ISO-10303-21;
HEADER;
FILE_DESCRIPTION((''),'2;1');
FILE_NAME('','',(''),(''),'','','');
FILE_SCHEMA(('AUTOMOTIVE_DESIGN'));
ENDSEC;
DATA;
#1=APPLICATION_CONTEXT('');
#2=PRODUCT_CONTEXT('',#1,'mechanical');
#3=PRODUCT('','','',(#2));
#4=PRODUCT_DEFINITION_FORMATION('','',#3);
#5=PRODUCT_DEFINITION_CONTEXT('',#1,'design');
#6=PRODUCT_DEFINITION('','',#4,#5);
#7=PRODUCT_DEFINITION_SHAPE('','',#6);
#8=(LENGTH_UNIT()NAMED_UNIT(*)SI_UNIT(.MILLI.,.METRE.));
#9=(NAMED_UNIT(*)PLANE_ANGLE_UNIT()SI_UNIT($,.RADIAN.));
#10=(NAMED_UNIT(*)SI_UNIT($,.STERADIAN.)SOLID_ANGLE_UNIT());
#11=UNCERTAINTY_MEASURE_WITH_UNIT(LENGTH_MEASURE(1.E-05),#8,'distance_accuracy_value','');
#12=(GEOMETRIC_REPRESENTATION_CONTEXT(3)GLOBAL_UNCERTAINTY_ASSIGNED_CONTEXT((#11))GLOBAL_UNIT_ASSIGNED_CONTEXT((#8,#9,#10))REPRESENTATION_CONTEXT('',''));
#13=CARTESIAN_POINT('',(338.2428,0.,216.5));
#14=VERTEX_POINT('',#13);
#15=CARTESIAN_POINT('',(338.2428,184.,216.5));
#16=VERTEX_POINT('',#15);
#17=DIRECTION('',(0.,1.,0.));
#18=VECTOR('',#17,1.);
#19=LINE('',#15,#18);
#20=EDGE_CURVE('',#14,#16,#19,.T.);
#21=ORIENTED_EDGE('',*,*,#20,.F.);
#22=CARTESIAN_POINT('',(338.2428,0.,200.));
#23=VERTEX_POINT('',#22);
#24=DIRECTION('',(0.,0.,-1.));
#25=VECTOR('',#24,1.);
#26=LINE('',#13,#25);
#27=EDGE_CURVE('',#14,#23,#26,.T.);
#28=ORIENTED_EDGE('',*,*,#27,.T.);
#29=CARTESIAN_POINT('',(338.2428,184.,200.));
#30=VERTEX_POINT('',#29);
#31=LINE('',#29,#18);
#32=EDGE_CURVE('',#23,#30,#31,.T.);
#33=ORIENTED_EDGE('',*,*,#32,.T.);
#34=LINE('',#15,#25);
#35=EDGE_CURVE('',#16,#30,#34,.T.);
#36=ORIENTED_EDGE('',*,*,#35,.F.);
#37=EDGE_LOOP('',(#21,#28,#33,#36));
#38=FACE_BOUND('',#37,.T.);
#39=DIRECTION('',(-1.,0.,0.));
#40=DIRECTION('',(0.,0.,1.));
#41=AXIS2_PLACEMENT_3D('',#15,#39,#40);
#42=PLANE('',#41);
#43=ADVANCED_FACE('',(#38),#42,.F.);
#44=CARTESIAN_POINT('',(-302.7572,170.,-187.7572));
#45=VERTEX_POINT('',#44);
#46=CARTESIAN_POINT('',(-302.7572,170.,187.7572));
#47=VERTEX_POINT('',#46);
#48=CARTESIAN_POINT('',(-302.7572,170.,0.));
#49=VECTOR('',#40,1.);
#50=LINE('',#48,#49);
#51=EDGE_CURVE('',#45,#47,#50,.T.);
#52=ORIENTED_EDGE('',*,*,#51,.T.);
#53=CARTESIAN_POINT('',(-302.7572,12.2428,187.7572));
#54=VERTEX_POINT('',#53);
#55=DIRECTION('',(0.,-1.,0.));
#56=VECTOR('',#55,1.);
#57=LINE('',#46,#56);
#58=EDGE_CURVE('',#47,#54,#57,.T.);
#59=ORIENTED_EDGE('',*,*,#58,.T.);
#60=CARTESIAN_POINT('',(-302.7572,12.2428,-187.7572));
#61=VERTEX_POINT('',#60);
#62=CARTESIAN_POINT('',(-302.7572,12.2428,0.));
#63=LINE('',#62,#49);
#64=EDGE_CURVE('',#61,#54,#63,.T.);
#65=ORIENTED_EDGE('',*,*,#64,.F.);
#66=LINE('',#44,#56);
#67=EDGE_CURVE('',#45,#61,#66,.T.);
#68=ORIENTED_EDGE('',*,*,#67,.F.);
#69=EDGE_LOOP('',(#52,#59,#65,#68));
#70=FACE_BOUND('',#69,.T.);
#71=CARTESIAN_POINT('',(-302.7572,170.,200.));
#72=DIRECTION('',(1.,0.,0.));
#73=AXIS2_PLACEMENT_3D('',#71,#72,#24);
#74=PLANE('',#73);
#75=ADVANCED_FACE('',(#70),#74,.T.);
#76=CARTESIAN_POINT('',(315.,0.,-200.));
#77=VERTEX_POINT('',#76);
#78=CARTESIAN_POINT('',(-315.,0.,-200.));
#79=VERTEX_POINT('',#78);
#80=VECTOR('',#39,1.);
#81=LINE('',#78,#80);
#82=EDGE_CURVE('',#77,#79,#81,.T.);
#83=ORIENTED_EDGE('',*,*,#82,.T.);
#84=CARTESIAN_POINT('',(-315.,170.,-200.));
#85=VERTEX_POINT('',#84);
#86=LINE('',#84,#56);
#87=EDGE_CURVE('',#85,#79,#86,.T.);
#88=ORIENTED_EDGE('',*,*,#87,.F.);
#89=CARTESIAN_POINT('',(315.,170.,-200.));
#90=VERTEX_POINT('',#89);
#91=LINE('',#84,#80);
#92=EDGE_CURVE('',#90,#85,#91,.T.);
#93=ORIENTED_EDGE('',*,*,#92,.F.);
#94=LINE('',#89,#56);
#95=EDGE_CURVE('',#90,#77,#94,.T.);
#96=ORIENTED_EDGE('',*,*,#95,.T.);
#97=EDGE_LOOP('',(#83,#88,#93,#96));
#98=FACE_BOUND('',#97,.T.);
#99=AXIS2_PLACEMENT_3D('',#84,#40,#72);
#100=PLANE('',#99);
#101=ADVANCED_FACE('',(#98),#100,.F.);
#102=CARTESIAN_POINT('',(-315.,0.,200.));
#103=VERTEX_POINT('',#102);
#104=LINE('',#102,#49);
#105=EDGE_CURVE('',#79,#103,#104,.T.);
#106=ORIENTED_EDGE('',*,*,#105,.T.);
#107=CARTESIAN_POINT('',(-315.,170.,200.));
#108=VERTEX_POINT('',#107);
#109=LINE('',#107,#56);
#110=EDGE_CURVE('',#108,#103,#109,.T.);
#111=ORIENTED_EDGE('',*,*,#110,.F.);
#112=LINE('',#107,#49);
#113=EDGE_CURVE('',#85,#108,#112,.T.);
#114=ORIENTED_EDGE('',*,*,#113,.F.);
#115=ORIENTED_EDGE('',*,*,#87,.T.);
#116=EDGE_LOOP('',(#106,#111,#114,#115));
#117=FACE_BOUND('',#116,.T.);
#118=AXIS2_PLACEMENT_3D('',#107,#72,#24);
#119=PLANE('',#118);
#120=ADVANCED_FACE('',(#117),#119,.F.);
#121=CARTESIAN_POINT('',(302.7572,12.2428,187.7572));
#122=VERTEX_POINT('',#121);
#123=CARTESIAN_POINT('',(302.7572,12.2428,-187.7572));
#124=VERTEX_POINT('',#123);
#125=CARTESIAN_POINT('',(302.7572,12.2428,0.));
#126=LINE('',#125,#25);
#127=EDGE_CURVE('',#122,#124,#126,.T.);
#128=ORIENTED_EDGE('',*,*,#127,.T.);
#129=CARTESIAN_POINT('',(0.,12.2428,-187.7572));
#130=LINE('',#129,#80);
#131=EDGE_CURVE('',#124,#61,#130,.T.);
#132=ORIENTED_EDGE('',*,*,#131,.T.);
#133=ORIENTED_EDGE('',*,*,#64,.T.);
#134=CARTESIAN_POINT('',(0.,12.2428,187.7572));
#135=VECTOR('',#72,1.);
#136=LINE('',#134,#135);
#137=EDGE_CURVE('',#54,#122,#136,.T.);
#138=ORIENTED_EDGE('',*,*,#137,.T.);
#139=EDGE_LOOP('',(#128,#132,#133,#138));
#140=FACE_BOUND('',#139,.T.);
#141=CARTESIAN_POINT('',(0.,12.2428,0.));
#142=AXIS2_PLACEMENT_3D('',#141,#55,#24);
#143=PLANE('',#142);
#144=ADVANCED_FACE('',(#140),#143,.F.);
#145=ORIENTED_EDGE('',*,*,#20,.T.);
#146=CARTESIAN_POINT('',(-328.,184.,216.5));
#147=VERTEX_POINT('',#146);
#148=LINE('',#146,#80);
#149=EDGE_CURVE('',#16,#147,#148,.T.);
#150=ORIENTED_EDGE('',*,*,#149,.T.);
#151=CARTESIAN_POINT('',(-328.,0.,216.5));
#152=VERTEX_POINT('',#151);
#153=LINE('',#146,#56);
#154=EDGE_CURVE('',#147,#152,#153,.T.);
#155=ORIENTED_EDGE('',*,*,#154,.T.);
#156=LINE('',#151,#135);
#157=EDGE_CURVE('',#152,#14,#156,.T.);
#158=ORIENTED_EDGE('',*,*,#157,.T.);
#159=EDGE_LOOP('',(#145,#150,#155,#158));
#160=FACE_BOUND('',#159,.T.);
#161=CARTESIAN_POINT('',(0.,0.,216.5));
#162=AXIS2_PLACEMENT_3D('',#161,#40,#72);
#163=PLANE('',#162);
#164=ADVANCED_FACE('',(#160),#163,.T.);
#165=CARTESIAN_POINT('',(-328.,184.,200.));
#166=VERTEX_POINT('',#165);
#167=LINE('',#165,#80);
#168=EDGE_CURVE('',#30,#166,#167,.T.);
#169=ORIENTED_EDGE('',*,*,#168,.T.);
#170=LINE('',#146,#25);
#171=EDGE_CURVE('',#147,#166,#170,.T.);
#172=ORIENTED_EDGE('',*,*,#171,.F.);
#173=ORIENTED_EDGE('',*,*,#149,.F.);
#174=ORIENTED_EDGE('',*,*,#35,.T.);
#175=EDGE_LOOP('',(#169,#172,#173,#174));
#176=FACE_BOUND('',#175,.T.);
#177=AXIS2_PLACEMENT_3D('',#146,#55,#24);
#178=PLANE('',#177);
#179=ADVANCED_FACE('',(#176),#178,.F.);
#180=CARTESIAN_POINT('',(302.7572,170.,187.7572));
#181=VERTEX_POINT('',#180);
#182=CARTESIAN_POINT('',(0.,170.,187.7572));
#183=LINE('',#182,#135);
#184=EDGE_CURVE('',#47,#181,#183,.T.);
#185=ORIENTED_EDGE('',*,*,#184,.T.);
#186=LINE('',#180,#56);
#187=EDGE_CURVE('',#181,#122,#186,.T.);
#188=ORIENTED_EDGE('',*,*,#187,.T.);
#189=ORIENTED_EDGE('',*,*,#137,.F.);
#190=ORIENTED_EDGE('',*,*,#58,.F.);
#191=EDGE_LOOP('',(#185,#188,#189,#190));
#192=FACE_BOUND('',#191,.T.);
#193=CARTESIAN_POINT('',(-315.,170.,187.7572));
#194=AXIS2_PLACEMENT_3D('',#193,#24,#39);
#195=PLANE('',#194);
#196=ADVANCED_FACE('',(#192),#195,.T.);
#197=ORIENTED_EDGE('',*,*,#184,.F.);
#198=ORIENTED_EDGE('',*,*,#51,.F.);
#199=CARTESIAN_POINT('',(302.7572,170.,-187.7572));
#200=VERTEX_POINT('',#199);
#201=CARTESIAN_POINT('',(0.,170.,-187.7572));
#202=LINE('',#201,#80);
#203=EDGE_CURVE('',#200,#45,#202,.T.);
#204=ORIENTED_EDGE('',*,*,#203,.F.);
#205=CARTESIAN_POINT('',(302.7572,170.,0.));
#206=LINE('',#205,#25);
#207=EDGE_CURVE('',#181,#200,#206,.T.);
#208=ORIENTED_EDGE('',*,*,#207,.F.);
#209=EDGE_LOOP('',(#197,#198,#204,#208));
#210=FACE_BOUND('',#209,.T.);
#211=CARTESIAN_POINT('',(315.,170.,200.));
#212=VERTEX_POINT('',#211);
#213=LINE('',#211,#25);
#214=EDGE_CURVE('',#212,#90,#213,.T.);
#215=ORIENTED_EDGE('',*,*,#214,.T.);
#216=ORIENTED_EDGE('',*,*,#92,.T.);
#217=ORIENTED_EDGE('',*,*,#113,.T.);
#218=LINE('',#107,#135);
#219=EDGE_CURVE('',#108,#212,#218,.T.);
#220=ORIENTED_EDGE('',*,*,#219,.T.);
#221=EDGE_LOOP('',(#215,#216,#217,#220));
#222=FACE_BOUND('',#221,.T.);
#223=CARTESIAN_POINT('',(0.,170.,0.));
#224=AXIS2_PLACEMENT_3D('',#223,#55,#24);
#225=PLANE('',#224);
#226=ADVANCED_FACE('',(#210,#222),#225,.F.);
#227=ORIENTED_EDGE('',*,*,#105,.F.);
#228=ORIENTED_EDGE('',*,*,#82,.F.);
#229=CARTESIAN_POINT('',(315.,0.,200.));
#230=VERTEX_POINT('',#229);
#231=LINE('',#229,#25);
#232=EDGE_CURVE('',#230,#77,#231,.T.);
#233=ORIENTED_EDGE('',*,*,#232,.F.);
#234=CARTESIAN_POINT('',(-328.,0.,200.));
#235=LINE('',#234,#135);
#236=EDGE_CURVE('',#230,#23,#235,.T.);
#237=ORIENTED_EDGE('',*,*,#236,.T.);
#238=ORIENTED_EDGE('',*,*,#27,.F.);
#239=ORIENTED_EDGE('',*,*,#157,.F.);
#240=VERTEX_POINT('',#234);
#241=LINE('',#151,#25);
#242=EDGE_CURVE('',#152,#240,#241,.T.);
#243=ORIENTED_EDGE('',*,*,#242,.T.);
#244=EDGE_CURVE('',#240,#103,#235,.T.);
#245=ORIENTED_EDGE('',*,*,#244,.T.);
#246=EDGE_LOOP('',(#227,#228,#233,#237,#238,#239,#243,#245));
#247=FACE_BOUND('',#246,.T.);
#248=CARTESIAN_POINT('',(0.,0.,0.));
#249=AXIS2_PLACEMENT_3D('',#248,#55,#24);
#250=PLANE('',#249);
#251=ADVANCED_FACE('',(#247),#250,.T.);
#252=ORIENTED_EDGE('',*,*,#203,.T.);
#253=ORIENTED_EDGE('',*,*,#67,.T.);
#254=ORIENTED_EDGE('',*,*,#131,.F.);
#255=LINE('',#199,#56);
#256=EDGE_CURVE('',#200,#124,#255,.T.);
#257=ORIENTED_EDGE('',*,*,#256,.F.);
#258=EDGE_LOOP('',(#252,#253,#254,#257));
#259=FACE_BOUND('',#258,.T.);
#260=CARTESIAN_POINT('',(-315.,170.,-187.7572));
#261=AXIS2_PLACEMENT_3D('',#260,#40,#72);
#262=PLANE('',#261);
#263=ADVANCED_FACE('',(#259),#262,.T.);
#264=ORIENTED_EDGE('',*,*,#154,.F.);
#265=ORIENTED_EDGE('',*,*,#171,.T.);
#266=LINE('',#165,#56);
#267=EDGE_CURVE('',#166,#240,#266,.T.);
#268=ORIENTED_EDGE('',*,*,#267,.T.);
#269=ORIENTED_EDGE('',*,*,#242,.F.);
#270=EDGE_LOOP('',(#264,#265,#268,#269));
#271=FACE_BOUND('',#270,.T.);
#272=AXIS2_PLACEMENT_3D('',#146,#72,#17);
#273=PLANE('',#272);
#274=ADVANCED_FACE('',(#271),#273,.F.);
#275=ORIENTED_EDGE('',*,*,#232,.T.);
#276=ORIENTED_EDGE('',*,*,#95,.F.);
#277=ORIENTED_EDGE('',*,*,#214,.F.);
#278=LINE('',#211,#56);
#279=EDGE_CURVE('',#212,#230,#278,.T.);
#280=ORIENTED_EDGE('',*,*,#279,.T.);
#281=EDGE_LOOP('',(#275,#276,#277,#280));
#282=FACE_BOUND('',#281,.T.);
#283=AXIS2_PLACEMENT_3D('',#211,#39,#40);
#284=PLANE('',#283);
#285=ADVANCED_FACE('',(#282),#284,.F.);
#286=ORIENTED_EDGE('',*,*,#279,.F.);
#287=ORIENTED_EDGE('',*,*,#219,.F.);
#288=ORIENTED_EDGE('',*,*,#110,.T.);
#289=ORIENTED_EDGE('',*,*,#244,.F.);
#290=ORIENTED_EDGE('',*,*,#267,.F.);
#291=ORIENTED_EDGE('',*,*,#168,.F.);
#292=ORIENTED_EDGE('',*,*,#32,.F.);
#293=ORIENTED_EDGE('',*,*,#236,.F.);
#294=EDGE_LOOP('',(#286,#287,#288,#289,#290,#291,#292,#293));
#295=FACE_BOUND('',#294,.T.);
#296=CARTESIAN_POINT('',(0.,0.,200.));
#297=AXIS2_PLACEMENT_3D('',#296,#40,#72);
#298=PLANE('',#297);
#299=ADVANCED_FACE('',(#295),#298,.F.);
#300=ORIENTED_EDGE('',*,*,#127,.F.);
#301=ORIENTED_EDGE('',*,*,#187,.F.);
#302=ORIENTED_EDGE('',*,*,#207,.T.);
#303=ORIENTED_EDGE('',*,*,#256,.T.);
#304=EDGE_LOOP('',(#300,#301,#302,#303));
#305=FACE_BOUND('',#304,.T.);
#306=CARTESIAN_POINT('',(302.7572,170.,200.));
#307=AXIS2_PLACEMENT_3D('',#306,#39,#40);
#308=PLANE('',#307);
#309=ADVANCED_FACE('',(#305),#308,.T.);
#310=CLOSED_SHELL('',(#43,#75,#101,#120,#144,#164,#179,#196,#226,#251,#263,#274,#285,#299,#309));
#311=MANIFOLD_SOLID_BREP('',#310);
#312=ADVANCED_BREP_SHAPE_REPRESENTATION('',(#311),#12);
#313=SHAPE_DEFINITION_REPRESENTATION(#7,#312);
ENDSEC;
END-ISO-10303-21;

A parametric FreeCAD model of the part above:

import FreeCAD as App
import Part
import Sketcher
Q = App.Units.Quantity


def faces_at(feature, points):
    """Names of the faces that lie closest to the given points."""
    faces = feature.Shape.Faces
    near = lambda p: min(range(len(faces)), key=lambda i: faces[i].distToShape(Part.Vertex(*p))[0])
    return sorted({f"Face{near(p) + 1}" for p in points})

doc = App.newDocument("Part")
params = doc.addObject("Spreadsheet::Sheet", "Params")
for row, (alias, value) in enumerate([
    ("sketch1_width", "630 mm"),
    ("sketch1_height", "400 mm"),
    ("pad1_length", "170 mm"),
    ("thickness_wall", "12.2428 mm"),
    ("sketch2_height", "184 mm"),
    ("pad2_length", "16.5 mm"),
], start=1):
    params.set(f"A{row}", alias)
    params.set(f"B{row}", "=" + value)
    params.setAlias(f"B{row}", alias)

body = doc.addObject("PartDesign::Body", "Body")

# Sketch on XZ plane
sketch1 = body.newObject("Sketcher::SketchObject", "Sketch")
sketch1.AttachmentSupport = (doc.getObject("XZ_Plane"), [""])
sketch1.MapMode = "FlatFace"
sketch1.addGeometry(Part.LineSegment(App.Vector(-315, -200, 0), App.Vector(-315, 200, 0)), False)
sketch1.addGeometry(Part.LineSegment(App.Vector(-315, 200, 0), App.Vector(315, 200, 0)), False)
sketch1.addGeometry(Part.LineSegment(App.Vector(315, 200, 0), App.Vector(315, -200, 0)), False)
sketch1.addGeometry(Part.LineSegment(App.Vector(315, -200, 0), App.Vector(-315, -200, 0)), False)
sketch1.addConstraint(Sketcher.Constraint("Coincident", 0, 2, 1, 1))
sketch1.addConstraint(Sketcher.Constraint("Coincident", 1, 2, 2, 1))
sketch1.addConstraint(Sketcher.Constraint("Coincident", 2, 2, 3, 1))
sketch1.addConstraint(Sketcher.Constraint("Coincident", 3, 2, 0, 1))
sketch1.addConstraint(Sketcher.Constraint("Vertical", 0))
sketch1.addConstraint(Sketcher.Constraint("Horizontal", 1))
sketch1.addConstraint(Sketcher.Constraint("Vertical", 2))
sketch1.addConstraint(Sketcher.Constraint("Horizontal", 3))
sketch1.addConstraint(Sketcher.Constraint("Symmetric", 0, 2, 2, 2, -1, 1))
sketch1.addConstraint(Sketcher.Constraint("DistanceX", 1, 1, 1, 2, Q("630 mm")))
sketch1.addConstraint(Sketcher.Constraint("DistanceY", 0, 1, 0, 2, Q("400 mm")))
sketch1.setExpression("Constraints[9]", "Params.sketch1_width")
sketch1.setExpression("Constraints[10]", "Params.sketch1_height")
pad1 = body.newObject("PartDesign::Pad", "Pad")
pad1.Profile = sketch1
pad1.setExpression("Length", "Params.pad1_length")
pad1.Reversed = True
doc.recompute()

thickness = body.newObject("PartDesign::Thickness", "Thickness")
thickness.Base = (pad1, faces_at(pad1, [(0, 170, 0)]))
thickness.setExpression("Value", "Params.thickness_wall")
thickness.Reversed = True
thickness.Join = "Intersection"

# Sketch on XY plane
sketch2 = body.newObject("Sketcher::SketchObject", "Sketch001")
sketch2.AttachmentSupport = (doc.getObject("XY_Plane"), [""])
sketch2.MapMode = "FlatFace"
sketch2.AttachmentOffset = App.Placement(App.Vector(0, 0, 200), App.Rotation())
sketch2.addGeometry(Part.LineSegment(App.Vector(-328, 184, 0), App.Vector(-328, 0, 0)), False)
sketch2.addGeometry(Part.LineSegment(App.Vector(-328, 0, 0), App.Vector(338, 0, 0)), False)
sketch2.addGeometry(Part.LineSegment(App.Vector(338, 0, 0), App.Vector(338, 184, 0)), False)
sketch2.addGeometry(Part.LineSegment(App.Vector(338, 184, 0), App.Vector(-328, 184, 0)), False)
sketch2.addConstraint(Sketcher.Constraint("Coincident", 0, 2, 1, 1))
sketch2.addConstraint(Sketcher.Constraint("Coincident", 1, 2, 2, 1))
sketch2.addConstraint(Sketcher.Constraint("Coincident", 2, 2, 3, 1))
sketch2.addConstraint(Sketcher.Constraint("Coincident", 3, 2, 0, 1))
sketch2.addConstraint(Sketcher.Constraint("Vertical", 0))
sketch2.addConstraint(Sketcher.Constraint("Horizontal", 1))
sketch2.addConstraint(Sketcher.Constraint("Vertical", 2))
sketch2.addConstraint(Sketcher.Constraint("Horizontal", 3))
sketch2.addConstraint(Sketcher.Constraint("PointOnObject", 0, 2, -1))
sketch2.addConstraint(Sketcher.Constraint("DistanceY", 0, 2, 0, 1, Q("184 mm")))
sketch2.addConstraint(Sketcher.Constraint("DistanceX", 0, 2, -1, 1, Q("328 mm")))
sketch2.addConstraint(Sketcher.Constraint("DistanceX", 1, 1, 1, 2, Q("666.2428 mm")))
sketch2.setExpression("Constraints[9]", "Params.sketch2_height")
pad2 = body.newObject("PartDesign::Pad", "Pad001")
pad2.Profile = sketch2
pad2.setExpression("Length", "Params.pad2_length")

doc.recompute()
